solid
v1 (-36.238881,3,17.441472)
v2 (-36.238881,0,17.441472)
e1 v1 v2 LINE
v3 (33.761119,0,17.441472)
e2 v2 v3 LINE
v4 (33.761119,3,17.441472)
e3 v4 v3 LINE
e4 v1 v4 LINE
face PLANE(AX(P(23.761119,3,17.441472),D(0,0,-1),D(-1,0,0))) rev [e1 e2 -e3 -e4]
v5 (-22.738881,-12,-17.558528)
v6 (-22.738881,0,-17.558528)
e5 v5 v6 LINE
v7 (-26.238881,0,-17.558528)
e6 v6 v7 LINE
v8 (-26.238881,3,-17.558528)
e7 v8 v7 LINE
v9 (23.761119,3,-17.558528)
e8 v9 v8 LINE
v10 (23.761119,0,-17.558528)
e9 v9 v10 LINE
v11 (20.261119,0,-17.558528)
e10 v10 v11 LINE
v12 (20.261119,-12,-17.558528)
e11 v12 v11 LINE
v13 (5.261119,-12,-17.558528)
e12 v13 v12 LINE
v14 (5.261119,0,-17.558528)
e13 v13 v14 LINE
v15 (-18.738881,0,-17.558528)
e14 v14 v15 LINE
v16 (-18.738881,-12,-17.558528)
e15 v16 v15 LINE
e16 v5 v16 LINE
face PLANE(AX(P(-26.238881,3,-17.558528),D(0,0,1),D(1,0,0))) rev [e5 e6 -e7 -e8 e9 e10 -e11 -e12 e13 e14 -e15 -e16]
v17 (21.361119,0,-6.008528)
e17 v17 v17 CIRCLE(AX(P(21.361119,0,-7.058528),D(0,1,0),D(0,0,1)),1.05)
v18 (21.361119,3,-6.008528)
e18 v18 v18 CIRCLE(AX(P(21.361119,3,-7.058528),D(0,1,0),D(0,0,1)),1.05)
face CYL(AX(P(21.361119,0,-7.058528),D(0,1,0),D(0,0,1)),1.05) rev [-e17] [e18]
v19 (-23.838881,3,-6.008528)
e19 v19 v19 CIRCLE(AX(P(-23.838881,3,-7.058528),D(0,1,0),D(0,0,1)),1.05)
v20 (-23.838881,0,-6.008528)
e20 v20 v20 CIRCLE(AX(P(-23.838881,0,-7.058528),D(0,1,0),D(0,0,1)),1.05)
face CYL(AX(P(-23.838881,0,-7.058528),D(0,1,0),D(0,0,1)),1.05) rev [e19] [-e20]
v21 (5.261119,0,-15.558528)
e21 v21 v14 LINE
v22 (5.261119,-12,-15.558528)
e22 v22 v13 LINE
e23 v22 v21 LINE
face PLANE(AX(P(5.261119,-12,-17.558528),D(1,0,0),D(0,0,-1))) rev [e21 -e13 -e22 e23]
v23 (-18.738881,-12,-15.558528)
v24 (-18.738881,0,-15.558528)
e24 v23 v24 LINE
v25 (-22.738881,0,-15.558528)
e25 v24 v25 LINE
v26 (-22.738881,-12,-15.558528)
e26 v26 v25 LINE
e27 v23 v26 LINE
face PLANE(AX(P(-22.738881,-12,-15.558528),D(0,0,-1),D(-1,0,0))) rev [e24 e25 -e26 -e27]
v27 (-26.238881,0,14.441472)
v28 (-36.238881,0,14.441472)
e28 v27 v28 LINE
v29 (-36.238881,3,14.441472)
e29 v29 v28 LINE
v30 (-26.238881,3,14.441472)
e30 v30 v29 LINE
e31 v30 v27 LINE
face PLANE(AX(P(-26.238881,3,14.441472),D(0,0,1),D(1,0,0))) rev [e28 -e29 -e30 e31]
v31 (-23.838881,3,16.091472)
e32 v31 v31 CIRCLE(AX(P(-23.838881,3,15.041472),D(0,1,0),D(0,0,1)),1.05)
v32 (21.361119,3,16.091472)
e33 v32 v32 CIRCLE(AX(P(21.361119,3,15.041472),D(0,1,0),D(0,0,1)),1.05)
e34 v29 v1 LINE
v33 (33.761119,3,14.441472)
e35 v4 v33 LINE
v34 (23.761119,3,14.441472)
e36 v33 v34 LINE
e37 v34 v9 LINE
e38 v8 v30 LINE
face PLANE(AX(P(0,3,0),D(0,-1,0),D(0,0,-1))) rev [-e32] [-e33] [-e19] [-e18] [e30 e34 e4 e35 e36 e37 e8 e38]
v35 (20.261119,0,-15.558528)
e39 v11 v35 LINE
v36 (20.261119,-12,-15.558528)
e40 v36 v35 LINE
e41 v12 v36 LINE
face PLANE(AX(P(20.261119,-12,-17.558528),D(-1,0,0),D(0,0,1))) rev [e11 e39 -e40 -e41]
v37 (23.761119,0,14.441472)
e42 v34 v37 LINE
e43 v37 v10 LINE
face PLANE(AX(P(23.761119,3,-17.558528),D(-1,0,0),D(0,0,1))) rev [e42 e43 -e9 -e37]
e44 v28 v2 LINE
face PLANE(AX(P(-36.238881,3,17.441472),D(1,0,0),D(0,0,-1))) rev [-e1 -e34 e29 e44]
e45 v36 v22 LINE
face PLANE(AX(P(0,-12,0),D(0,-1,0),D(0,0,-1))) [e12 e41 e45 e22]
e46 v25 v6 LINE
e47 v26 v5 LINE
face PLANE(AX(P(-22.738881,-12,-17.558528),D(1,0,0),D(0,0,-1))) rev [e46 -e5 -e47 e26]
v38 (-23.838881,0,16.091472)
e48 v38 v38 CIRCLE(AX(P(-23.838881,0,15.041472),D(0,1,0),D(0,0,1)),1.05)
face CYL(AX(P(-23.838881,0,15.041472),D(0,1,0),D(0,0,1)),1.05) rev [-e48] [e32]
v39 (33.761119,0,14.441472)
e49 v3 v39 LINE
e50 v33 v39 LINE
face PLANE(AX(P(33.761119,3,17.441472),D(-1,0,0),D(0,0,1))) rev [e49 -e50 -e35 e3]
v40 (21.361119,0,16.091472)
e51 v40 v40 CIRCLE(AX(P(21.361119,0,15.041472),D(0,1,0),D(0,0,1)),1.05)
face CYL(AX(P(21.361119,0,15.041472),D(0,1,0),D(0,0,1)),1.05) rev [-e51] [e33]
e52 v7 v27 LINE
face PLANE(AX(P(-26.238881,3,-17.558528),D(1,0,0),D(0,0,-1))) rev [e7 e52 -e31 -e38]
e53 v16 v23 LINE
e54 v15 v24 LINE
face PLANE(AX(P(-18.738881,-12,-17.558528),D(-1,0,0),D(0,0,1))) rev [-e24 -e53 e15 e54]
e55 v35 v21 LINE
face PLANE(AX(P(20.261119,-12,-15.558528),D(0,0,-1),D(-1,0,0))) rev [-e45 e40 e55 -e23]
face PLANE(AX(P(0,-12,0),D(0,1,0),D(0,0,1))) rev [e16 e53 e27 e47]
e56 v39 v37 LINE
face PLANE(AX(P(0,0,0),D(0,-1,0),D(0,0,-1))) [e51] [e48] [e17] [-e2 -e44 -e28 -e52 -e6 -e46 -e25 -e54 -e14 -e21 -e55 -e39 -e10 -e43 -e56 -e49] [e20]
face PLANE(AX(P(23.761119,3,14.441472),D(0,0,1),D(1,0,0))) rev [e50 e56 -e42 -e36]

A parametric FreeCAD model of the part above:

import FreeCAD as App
import Part
import Sketcher

V = App.Vector
Q = App.Units.Quantity


def add_polygon(sketch, points):
    """Adds a closed chain of lines whose ends are joined by coincident constraints."""
    first, n = sketch.GeometryCount, len(points)
    for a, b in zip(points, points[1:] + points[:1]):
        sketch.addGeometry(Part.LineSegment(App.Vector(*a, 0), App.Vector(*b, 0)), False)
    for i in range(n):
        sketch.addConstraint(Sketcher.Constraint("Coincident", first + i, 2, first + (i + 1) % n, 1))

doc = App.newDocument("Part")
body = doc.addObject("PartDesign::Body", "Body")

sketch1 = body.newObject("Sketcher::SketchObject", "Sketch")
sketch1.AttachmentSupport = (doc.getObject("XZ_Plane"), [""])
sketch1.MapMode = "FlatFace"
add_polygon(sketch1, [(23.8, -17.6), (-26.2, -17.6), (-26.2, 14.4), (-36.2, 14.4), (-36.2, 17.4), (33.8, 17.4), (33.8, 14.4), (23.8, 14.4)])
sketch1.addConstraint(Sketcher.Constraint("Horizontal", 0))
sketch1.addConstraint(Sketcher.Constraint("Vertical", 1))
sketch1.addConstraint(Sketcher.Constraint("Horizontal", 2))
sketch1.addConstraint(Sketcher.Constraint("Vertical", 3))
sketch1.addConstraint(Sketcher.Constraint("Horizontal", 4))
sketch1.addConstraint(Sketcher.Constraint("Vertical", 5))
sketch1.addConstraint(Sketcher.Constraint("Horizontal", 6))
sketch1.addConstraint(Sketcher.Constraint("Vertical", 7))
sketch1.addConstraint(Sketcher.Constraint("Horizontal", 2, 2, 5, 2))
sketch1.addConstraint(Sketcher.Constraint("Equal", 2, 6))
sketch1.addConstraint(Sketcher.Constraint("DistanceX", 0, 2, 0, 1, Q("50 mm")))
sketch1.addConstraint(Sketcher.Constraint("DistanceX", 2, 2, 2, 1, Q("10 mm")))
sketch1.addConstraint(Sketcher.Constraint("DistanceY", 1, 1, 1, 2, Q("32 mm")))
sketch1.addConstraint(Sketcher.Constraint("DistanceY", 3, 1, 3, 2, Q("3 mm")))
sketch1.addConstraint(Sketcher.Constraint("DistanceX", 0, 2, -1, 1, Q("26.238881 mm")))
sketch1.addConstraint(Sketcher.Constraint("DistanceY", 0, 2, -1, 1, Q("17.558528 mm")))
pad1 = body.newObject("PartDesign::Pad", "Pad")
pad1.Profile = sketch1
pad1.Length = 3
pad1.Reversed = True

sketch2 = body.newObject("Sketcher::SketchObject", "Sketch001")
sketch2.AttachmentSupport = (doc.getObject("XZ_Plane"), [""])
sketch2.MapMode = "FlatFace"
sketch2.AttachmentOffset = App.Placement(V(0, 0, -3), App.Rotation())
sketch2.addGeometry(Part.Circle(V(-23.8, 15, 0), V(0, 0, 1), 1.1), False)
sketch2.addGeometry(Part.Circle(V(21.4, 15, 0), V(0, 0, 1), 1.1), False)
sketch2.addConstraint(Sketcher.Constraint("Equal", 0, 1))
sketch2.addConstraint(Sketcher.Constraint("Horizontal", 0, 3, 1, 3))
sketch2.addConstraint(Sketcher.Constraint("Diameter", 0, Q("2.1 mm")))
sketch2.addConstraint(Sketcher.Constraint("DistanceX", 0, 3, 1, 3, Q("45.2 mm")))
sketch2.addConstraint(Sketcher.Constraint("DistanceX", 0, 3, -1, 1, Q("23.838881 mm")))
sketch2.addConstraint(Sketcher.Constraint("DistanceY", -1, 1, 0, 3, Q("15.041472 mm")))
pocket1 = body.newObject("PartDesign::Pocket", "Pocket")
pocket1.Profile = sketch2
pocket1.Length = 3
pocket1.Reversed = True

sketch3 = body.newObject("Sketcher::SketchObject", "Sketch002")
sketch3.AttachmentSupport = (doc.getObject("XZ_Plane"), [""])
sketch3.MapMode = "FlatFace"
sketch3.AttachmentOffset = App.Placement(V(0, 0, -3), App.Rotation())
sketch3.addGeometry(Part.Circle(V(-23.8, -7.1, 0), V(0, 0, 1), 1.1), False)
sketch3.addGeometry(Part.Circle(V(21.4, -7.1, 0), V(0, 0, 1), 1.1), False)
sketch3.addConstraint(Sketcher.Constraint("Equal", 0, 1))
sketch3.addConstraint(Sketcher.Constraint("Horizontal", 0, 3, 1, 3))
sketch3.addConstraint(Sketcher.Constraint("Diameter", 0, Q("2.1 mm")))
sketch3.addConstraint(Sketcher.Constraint("DistanceX", 0, 3, 1, 3, Q("45.2 mm")))
sketch3.addConstraint(Sketcher.Constraint("DistanceX", 0, 3, -1, 1, Q("23.838881 mm")))
sketch3.addConstraint(Sketcher.Constraint("DistanceY", 0, 3, -1, 1, Q("7.058528 mm")))
pocket2 = body.newObject("PartDesign::Pocket", "Pocket001")
pocket2.Profile = sketch3
pocket2.Length = 3
pocket2.Reversed = True

sketch4 = body.newObject("Sketcher::SketchObject", "Sketch003")
sketch4.AttachmentSupport = (doc.getObject("XZ_Plane"), [""])
sketch4.MapMode = "FlatFace"
add_polygon(sketch4, [(5.3, -15.6), (5.3, -17.6), (20.3, -17.6), (20.3, -15.6)])
add_polygon(sketch4, [(-22.7, -15.6), (-22.7, -17.6), (-18.7, -17.6), (-18.7, -15.6)])
sketch4.addConstraint(Sketcher.Constraint("Vertical", 0))
sketch4.addConstraint(Sketcher.Constraint("Horizontal", 1))
sketch4.addConstraint(Sketcher.Constraint("Vertical", 2))
sketch4.addConstraint(Sketcher.Constraint("Horizontal", 3))
sketch4.addConstraint(Sketcher.Constraint("Vertical", 4))
sketch4.addConstraint(Sketcher.Constraint("Horizontal", 5))
sketch4.addConstraint(Sketcher.Constraint("Vertical", 6))
sketch4.addConstraint(Sketcher.Constraint("Horizontal", 7))
sketch4.addConstraint(Sketcher.Constraint("Horizontal", 1, 2, 4, 2))
sketch4.addConstraint(Sketcher.Constraint("Horizontal", 3, 2, 6, 2))
sketch4.addConstraint(Sketcher.Constraint("DistanceX", 1, 1, 1, 2, Q("15 mm")))
sketch4.addConstraint(Sketcher.Constraint("DistanceX", 5, 1, 5, 2, Q("4 mm")))
sketch4.addConstraint(Sketcher.Constraint("DistanceY", 0, 2, 0, 1, Q("2 mm")))
sketch4.addConstraint(Sketcher.Constraint("DistanceX", 4, 2, 0, 2, Q("28 mm")))
sketch4.addConstraint(Sketcher.Constraint("DistanceX", -1, 1, 0, 2, Q("5.261119 mm")))
sketch4.addConstraint(Sketcher.Constraint("DistanceY", 0, 2, -1, 1, Q("17.558528 mm")))
pad2 = body.newObject("PartDesign::Pad", "Pad001")
pad2.Profile = sketch4
pad2.Length = 12

doc.recompute()
